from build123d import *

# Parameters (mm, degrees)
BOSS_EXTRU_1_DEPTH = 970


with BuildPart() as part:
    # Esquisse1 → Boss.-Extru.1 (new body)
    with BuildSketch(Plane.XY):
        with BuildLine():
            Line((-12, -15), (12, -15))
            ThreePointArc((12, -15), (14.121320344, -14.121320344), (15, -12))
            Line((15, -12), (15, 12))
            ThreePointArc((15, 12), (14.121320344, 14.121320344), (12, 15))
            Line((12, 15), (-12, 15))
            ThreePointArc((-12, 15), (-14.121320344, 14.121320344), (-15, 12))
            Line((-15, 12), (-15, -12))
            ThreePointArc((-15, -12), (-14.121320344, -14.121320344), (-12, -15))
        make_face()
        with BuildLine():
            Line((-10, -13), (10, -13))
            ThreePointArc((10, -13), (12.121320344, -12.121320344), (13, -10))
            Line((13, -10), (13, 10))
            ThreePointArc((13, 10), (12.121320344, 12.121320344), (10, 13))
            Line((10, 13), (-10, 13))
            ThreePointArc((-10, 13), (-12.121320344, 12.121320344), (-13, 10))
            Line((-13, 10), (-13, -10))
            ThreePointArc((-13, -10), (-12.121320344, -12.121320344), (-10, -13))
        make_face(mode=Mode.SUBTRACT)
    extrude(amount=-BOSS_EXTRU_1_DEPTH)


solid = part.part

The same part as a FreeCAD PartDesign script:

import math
import FreeCAD as App
import Part
import Sketcher
Q = App.Units.Quantity

doc = App.newDocument("Part")
body = doc.addObject("PartDesign::Body", "Body")

# Sketch on XY plane
sketch1 = body.newObject("Sketcher::SketchObject", "Sketch")
sketch1.AttachmentSupport = (doc.getObject("XY_Plane"), [""])
sketch1.MapMode = "FlatFace"
sketch1.addGeometry([
    Part.LineSegment(App.Vector(-12, -15, 0), App.Vector(12, -15, 0)),  # 0
    Part.ArcOfCircle(Part.Circle(App.Vector(12, -12, 0), App.Vector(0, 0, 1), 3), math.radians(-90), math.radians(0)),  # 1
    Part.LineSegment(App.Vector(15, -12, 0), App.Vector(15, 12, 0)),  # 2
    Part.ArcOfCircle(Part.Circle(App.Vector(12, 12, 0), App.Vector(0, 0, 1), 3), math.radians(0), math.radians(90)),  # 3
    Part.LineSegment(App.Vector(12, 15, 0), App.Vector(-12, 15, 0)),  # 4
    Part.ArcOfCircle(Part.Circle(App.Vector(-12, 12, 0), App.Vector(0, 0, 1), 3), math.radians(90), math.radians(180)),  # 5
    Part.LineSegment(App.Vector(-15, 12, 0), App.Vector(-15, -12, 0)),  # 6
    Part.ArcOfCircle(Part.Circle(App.Vector(-12, -12, 0), App.Vector(0, 0, 1), 3), math.radians(180), math.radians(270)),  # 7
    Part.LineSegment(App.Vector(10, -13, 0), App.Vector(-10, -13, 0)),  # 8
    Part.ArcOfCircle(Part.Circle(App.Vector(-10, -10, 0), App.Vector(0, 0, 1), 3), math.radians(180), math.radians(270)),  # 9
    Part.LineSegment(App.Vector(-13, -10, 0), App.Vector(-13, 10, 0)),  # 10
    Part.ArcOfCircle(Part.Circle(App.Vector(-10, 10, 0), App.Vector(0, 0, 1), 3), math.radians(90), math.radians(180)),  # 11
    Part.LineSegment(App.Vector(-10, 13, 0), App.Vector(10, 13, 0)),  # 12
    Part.ArcOfCircle(Part.Circle(App.Vector(10, 10, 0), App.Vector(0, 0, 1), 3), math.radians(0), math.radians(90)),  # 13
    Part.LineSegment(App.Vector(13, 10, 0), App.Vector(13, -10, 0)),  # 14
    Part.ArcOfCircle(Part.Circle(App.Vector(10, -10, 0), App.Vector(0, 0, 1), 3), math.radians(-90), math.radians(0)),  # 15
], False)
sketch1.addConstraint([
    Sketcher.Constraint("Tangent", 0, 2, 1, 1),
    Sketcher.Constraint("Tangent", 1, 2, 2, 1),
    Sketcher.Constraint("Tangent", 2, 2, 3, 1),
    Sketcher.Constraint("Tangent", 3, 2, 4, 1),
    Sketcher.Constraint("Tangent", 4, 2, 5, 1),
    Sketcher.Constraint("Tangent", 5, 2, 6, 1),
    Sketcher.Constraint("Tangent", 6, 2, 7, 1),
    Sketcher.Constraint("Tangent", 7, 2, 0, 1),
    Sketcher.Constraint("Tangent", 8, 2, 9, 2),
    Sketcher.Constraint("Tangent", 9, 1, 10, 1),
    Sketcher.Constraint("Tangent", 10, 2, 11, 2),
    Sketcher.Constraint("Tangent", 11, 1, 12, 1),
    Sketcher.Constraint("Tangent", 12, 2, 13, 2),
    Sketcher.Constraint("Tangent", 13, 1, 14, 1),
    Sketcher.Constraint("Tangent", 14, 2, 15, 2),
    Sketcher.Constraint("Tangent", 15, 1, 8, 1),
    Sketcher.Constraint("Horizontal", 0),
    Sketcher.Constraint("Vertical", 2),
    Sketcher.Constraint("Horizontal", 4),
    Sketcher.Constraint("Vertical", 6),
    Sketcher.Constraint("Horizontal", 8),
    Sketcher.Constraint("Vertical", 10),
    Sketcher.Constraint("Horizontal", 12),
    Sketcher.Constraint("Vertical", 14),
    Sketcher.Constraint("Equal", 1, 3),
    Sketcher.Constraint("Equal", 3, 5),
    Sketcher.Constraint("Equal", 5, 7),
    Sketcher.Constraint("Equal", 7, 9),
    Sketcher.Constraint("Equal", 9, 11),
    Sketcher.Constraint("Equal", 11, 13),
    Sketcher.Constraint("Equal", 13, 15),
    Sketcher.Constraint("Symmetric", 1, 3, 5, 3, -1, 1),
    Sketcher.Constraint("Symmetric", 9, 3, 13, 3, -1, 1),
    Sketcher.Constraint("Equal", 4, 2),
    Sketcher.Constraint("Equal", 12, 10),
    Sketcher.Constraint("Radius", 1, Q("3 mm")),
    Sketcher.Constraint("DistanceX", 0, 1, 0, 2, Q("24 mm")),
    Sketcher.Constraint("DistanceX", 8, 2, 8, 1, Q("20 mm")),
])
pad1 = body.newObject("PartDesign::Pad", "Pad")
pad1.Profile = sketch1
pad1.Length = 970
pad1.Reversed = True

doc.recompute()
